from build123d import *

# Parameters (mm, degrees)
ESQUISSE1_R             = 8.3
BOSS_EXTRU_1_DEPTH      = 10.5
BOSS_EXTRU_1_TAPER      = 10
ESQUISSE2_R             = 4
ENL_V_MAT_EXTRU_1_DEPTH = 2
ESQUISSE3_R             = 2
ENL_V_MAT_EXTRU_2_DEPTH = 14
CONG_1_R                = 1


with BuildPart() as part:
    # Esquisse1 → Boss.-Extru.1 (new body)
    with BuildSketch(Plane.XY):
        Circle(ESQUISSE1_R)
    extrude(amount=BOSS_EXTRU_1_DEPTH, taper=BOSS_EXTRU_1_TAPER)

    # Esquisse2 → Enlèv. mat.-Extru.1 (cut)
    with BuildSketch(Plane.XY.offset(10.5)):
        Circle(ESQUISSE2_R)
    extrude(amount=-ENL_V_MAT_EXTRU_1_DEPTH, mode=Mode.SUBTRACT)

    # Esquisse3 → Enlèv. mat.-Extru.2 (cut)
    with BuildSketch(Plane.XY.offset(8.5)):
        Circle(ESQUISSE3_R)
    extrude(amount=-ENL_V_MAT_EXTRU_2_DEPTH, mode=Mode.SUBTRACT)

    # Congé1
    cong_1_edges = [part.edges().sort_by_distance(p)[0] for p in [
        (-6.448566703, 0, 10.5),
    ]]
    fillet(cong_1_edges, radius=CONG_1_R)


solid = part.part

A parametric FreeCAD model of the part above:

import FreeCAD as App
import Part
import Sketcher

V = App.Vector
Q = App.Units.Quantity


def edges_at(feature, points):
    """Names of the edges that pass closest to the given points."""
    edges = feature.Shape.Edges
    near = lambda p: min(range(len(edges)), key=lambda i: edges[i].distToShape(Part.Vertex(*p))[0])
    return sorted({f"Edge{near(p) + 1}" for p in points})

doc = App.newDocument("Part")
params = doc.addObject("Spreadsheet::Sheet", "Params")
for row, (alias, value) in enumerate([
    ("sketch1_diameter", "16.6 mm"),
    ("pad1_length", "10.5 mm"),
    ("pad1_taper", "-10 deg"),
    ("sketch2_diameter", "8 mm"),
    ("pocket1_length", "2 mm"),
    ("sketch3_diameter", "4 mm"),
    ("pocket2_length", "14 mm"),
    ("fillet_radius", "1 mm"),
], start=1):
    params.set(f"A{row}", alias)
    params.set(f"B{row}", "=" + value)
    params.setAlias(f"B{row}", alias)

body = doc.addObject("PartDesign::Body", "Body")

# Sketch on XY plane
sketch1 = body.newObject("Sketcher::SketchObject", "Sketch")
sketch1.AttachmentSupport = (doc.getObject("XY_Plane"), [""])
sketch1.MapMode = "FlatFace"
sketch1.addGeometry(Part.Circle(V(0, 0, 0), V(0, 0, 1), 8), False)
sketch1.addConstraint([
    Sketcher.Constraint("Coincident", 0, 3, -1, 1),
    Sketcher.Constraint("Diameter", 0, Q("16.6 mm")),
])
sketch1.setExpression("Constraints[1]", "Params.sketch1_diameter")
pad1 = body.newObject("PartDesign::Pad", "Pad")
pad1.Profile = sketch1
pad1.setExpression("Length", "Params.pad1_length")
pad1.setExpression("TaperAngle", "Params.pad1_taper")

# Sketch on XY plane
sketch2 = body.newObject("Sketcher::SketchObject", "Sketch001")
sketch2.AttachmentSupport = (doc.getObject("XY_Plane"), [""])
sketch2.MapMode = "FlatFace"
sketch2.AttachmentOffset = App.Placement(V(0, 0, 10.5), App.Rotation())
sketch2.addGeometry(Part.Circle(V(0, 0, 0), V(0, 0, 1), 4), False)
sketch2.addConstraint([
    Sketcher.Constraint("Coincident", 0, 3, -1, 1),
    Sketcher.Constraint("Diameter", 0, Q("8 mm")),
])
sketch2.setExpression("Constraints[1]", "Params.sketch2_diameter")
pocket1 = body.newObject("PartDesign::Pocket", "Pocket")
pocket1.Profile = sketch2
pocket1.setExpression("Length", "Params.pocket1_length")

# Sketch on XY plane
sketch3 = body.newObject("Sketcher::SketchObject", "Sketch002")
sketch3.AttachmentSupport = (doc.getObject("XY_Plane"), [""])
sketch3.MapMode = "FlatFace"
sketch3.AttachmentOffset = App.Placement(V(0, 0, 8.5), App.Rotation())
sketch3.addGeometry(Part.Circle(V(0, 0, 0), V(0, 0, 1), 2), False)
sketch3.addConstraint([
    Sketcher.Constraint("Coincident", 0, 3, -1, 1),
    Sketcher.Constraint("Diameter", 0, Q("4 mm")),
])
sketch3.setExpression("Constraints[1]", "Params.sketch3_diameter")
pocket2 = body.newObject("PartDesign::Pocket", "Pocket001")
pocket2.Profile = sketch3
pocket2.setExpression("Length", "Params.pocket2_length")
doc.recompute()

fillet = body.newObject("PartDesign::Fillet", "Fillet")
fillet.Base = (pocket2, edges_at(pocket2, [(-6.449, 0, 10.5)]))
fillet.setExpression("Radius", "Params.fillet_radius")

doc.recompute()
